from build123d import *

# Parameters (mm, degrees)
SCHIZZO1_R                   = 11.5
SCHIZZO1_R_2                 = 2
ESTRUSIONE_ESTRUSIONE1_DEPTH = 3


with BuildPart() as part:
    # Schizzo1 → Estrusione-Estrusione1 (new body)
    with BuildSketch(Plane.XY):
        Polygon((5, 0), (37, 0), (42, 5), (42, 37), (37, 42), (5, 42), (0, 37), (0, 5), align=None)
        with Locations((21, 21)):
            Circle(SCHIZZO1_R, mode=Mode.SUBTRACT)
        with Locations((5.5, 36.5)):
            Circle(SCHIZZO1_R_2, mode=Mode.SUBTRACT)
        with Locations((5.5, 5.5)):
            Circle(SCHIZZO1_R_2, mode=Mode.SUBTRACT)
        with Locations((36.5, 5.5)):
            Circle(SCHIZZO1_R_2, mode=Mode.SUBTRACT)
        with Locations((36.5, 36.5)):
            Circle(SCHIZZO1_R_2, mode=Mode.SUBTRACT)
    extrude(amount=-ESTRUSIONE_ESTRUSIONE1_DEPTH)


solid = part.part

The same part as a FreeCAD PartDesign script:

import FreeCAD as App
import Part
import Sketcher

V = App.Vector

doc = App.newDocument("Part")
body = doc.addObject("PartDesign::Body", "Body")

# Sketch on XY plane
sketch1 = body.newObject("Sketcher::SketchObject", "Sketch")
sketch1.AttachmentSupport = (doc.getObject("XY_Plane"), [""])
sketch1.MapMode = "FlatFace"
sketch1.addGeometry(Part.LineSegment(V(5, 0, 0), V(37, 0, 0)), False)
sketch1.addGeometry(Part.LineSegment(V(37, 0, 0), V(42, 5, 0)), False)
sketch1.addGeometry(Part.LineSegment(V(42, 5, 0), V(42, 37, 0)), False)
sketch1.addGeometry(Part.LineSegment(V(42, 37, 0), V(37, 42, 0)), False)
sketch1.addGeometry(Part.LineSegment(V(37, 42, 0), V(5, 42, 0)), False)
sketch1.addGeometry(Part.LineSegment(V(5, 42, 0), V(0, 37, 0)), False)
sketch1.addGeometry(Part.LineSegment(V(0, 37, 0), V(0, 5, 0)), False)
sketch1.addGeometry(Part.LineSegment(V(0, 5, 0), V(5, 0, 0)), False)
sketch1.addGeometry(Part.Circle(V(5.5, 5.5, 0), V(0, 0, 1), 2), False)
sketch1.addGeometry(Part.Circle(V(36.5, 5.5, 0), V(0, 0, 1), 2), False)
sketch1.addGeometry(Part.Circle(V(5.5, 36.5, 0), V(0, 0, 1), 2), False)
sketch1.addGeometry(Part.Circle(V(21, 21, 0), V(0, 0, 1), 11.5), False)
sketch1.addGeometry(Part.Circle(V(36.5, 36.5, 0), V(0, 0, 1), 2), False)
sketch1.addConstraint(Sketcher.Constraint("Coincident", 0, 2, 1, 1))
sketch1.addConstraint(Sketcher.Constraint("Coincident", 1, 2, 2, 1))
sketch1.addConstraint(Sketcher.Constraint("Coincident", 2, 2, 3, 1))
sketch1.addConstraint(Sketcher.Constraint("Coincident", 3, 2, 4, 1))
sketch1.addConstraint(Sketcher.Constraint("Coincident", 4, 2, 5, 1))
sketch1.addConstraint(Sketcher.Constraint("Coincident", 5, 2, 6, 1))
sketch1.addConstraint(Sketcher.Constraint("Coincident", 6, 2, 7, 1))
sketch1.addConstraint(Sketcher.Constraint("Coincident", 7, 2, 0, 1))
sketch1.addConstraint(Sketcher.Constraint("Horizontal", 0))
sketch1.addConstraint(Sketcher.Constraint("Vertical", 2))
sketch1.addConstraint(Sketcher.Constraint("Horizontal", 4))
sketch1.addConstraint(Sketcher.Constraint("Vertical", 6))
sketch1.addConstraint(Sketcher.Constraint("Equal", 8, 9))
sketch1.addConstraint(Sketcher.Constraint("Equal", 9, 10))
sketch1.addConstraint(Sketcher.Constraint("Equal", 10, 12))
sketch1.addConstraint(Sketcher.Constraint("PointOnObject", 0, 2, -1))
sketch1.addConstraint(Sketcher.Constraint("PointOnObject", 5, 2, -2))
sketch1.addConstraint(Sketcher.Constraint("Perpendicular", 1, 3))
sketch1.addConstraint(Sketcher.Constraint("Perpendicular", 3, 5))
sketch1.addConstraint(Sketcher.Constraint("Perpendicular", 5, 7))
sketch1.addConstraint(Sketcher.Constraint("Horizontal", 8, 3, 9, 3))
sketch1.addConstraint(Sketcher.Constraint("Horizontal", 10, 3, 12, 3))
sketch1.addConstraint(Sketcher.Constraint("Horizontal", 2, 2, 5, 2))
sketch1.addConstraint(Sketcher.Constraint("Horizontal", 1, 2, 6, 2))
sketch1.addConstraint(Sketcher.Constraint("Vertical", 8, 3, 10, 3))
sketch1.addConstraint(Sketcher.Constraint("Vertical", 9, 3, 12, 3))
sketch1.addConstraint(Sketcher.Constraint("Vertical", 0, 2, 3, 2))
sketch1.addConstraint(Sketcher.Constraint("Vertical", 4, 2, 7, 2))
sketch1.addConstraint(Sketcher.Constraint("Equal", 4, 2))
sketch1.addConstraint(Sketcher.Constraint("Diameter", 8, 4.0))
sketch1.addConstraint(Sketcher.Constraint("Diameter", 11, 23.0))
sketch1.addConstraint(Sketcher.Constraint("DistanceX", 0, 1, 0, 2, 32.0))
sketch1.addConstraint(Sketcher.Constraint("DistanceX", -1, 1, 11, 3, 21.0))
sketch1.addConstraint(Sketcher.Constraint("DistanceY", -1, 1, 11, 3, 21.0))
sketch1.addConstraint(Sketcher.Constraint("DistanceX", -1, 1, 0, 2, 37.0))
sketch1.addConstraint(Sketcher.Constraint("DistanceX", 8, 3, 9, 3, 31.0))
sketch1.addConstraint(Sketcher.Constraint("DistanceY", 8, 3, 10, 3, 31.0))
sketch1.addConstraint(Sketcher.Constraint("DistanceX", -1, 1, 8, 3, 5.5))
sketch1.addConstraint(Sketcher.Constraint("DistanceY", -1, 1, 8, 3, 5.5))
pad1 = body.newObject("PartDesign::Pad", "Pad")
pad1.Profile = sketch1
pad1.Length = 3
pad1.Reversed = True

doc.recompute()
